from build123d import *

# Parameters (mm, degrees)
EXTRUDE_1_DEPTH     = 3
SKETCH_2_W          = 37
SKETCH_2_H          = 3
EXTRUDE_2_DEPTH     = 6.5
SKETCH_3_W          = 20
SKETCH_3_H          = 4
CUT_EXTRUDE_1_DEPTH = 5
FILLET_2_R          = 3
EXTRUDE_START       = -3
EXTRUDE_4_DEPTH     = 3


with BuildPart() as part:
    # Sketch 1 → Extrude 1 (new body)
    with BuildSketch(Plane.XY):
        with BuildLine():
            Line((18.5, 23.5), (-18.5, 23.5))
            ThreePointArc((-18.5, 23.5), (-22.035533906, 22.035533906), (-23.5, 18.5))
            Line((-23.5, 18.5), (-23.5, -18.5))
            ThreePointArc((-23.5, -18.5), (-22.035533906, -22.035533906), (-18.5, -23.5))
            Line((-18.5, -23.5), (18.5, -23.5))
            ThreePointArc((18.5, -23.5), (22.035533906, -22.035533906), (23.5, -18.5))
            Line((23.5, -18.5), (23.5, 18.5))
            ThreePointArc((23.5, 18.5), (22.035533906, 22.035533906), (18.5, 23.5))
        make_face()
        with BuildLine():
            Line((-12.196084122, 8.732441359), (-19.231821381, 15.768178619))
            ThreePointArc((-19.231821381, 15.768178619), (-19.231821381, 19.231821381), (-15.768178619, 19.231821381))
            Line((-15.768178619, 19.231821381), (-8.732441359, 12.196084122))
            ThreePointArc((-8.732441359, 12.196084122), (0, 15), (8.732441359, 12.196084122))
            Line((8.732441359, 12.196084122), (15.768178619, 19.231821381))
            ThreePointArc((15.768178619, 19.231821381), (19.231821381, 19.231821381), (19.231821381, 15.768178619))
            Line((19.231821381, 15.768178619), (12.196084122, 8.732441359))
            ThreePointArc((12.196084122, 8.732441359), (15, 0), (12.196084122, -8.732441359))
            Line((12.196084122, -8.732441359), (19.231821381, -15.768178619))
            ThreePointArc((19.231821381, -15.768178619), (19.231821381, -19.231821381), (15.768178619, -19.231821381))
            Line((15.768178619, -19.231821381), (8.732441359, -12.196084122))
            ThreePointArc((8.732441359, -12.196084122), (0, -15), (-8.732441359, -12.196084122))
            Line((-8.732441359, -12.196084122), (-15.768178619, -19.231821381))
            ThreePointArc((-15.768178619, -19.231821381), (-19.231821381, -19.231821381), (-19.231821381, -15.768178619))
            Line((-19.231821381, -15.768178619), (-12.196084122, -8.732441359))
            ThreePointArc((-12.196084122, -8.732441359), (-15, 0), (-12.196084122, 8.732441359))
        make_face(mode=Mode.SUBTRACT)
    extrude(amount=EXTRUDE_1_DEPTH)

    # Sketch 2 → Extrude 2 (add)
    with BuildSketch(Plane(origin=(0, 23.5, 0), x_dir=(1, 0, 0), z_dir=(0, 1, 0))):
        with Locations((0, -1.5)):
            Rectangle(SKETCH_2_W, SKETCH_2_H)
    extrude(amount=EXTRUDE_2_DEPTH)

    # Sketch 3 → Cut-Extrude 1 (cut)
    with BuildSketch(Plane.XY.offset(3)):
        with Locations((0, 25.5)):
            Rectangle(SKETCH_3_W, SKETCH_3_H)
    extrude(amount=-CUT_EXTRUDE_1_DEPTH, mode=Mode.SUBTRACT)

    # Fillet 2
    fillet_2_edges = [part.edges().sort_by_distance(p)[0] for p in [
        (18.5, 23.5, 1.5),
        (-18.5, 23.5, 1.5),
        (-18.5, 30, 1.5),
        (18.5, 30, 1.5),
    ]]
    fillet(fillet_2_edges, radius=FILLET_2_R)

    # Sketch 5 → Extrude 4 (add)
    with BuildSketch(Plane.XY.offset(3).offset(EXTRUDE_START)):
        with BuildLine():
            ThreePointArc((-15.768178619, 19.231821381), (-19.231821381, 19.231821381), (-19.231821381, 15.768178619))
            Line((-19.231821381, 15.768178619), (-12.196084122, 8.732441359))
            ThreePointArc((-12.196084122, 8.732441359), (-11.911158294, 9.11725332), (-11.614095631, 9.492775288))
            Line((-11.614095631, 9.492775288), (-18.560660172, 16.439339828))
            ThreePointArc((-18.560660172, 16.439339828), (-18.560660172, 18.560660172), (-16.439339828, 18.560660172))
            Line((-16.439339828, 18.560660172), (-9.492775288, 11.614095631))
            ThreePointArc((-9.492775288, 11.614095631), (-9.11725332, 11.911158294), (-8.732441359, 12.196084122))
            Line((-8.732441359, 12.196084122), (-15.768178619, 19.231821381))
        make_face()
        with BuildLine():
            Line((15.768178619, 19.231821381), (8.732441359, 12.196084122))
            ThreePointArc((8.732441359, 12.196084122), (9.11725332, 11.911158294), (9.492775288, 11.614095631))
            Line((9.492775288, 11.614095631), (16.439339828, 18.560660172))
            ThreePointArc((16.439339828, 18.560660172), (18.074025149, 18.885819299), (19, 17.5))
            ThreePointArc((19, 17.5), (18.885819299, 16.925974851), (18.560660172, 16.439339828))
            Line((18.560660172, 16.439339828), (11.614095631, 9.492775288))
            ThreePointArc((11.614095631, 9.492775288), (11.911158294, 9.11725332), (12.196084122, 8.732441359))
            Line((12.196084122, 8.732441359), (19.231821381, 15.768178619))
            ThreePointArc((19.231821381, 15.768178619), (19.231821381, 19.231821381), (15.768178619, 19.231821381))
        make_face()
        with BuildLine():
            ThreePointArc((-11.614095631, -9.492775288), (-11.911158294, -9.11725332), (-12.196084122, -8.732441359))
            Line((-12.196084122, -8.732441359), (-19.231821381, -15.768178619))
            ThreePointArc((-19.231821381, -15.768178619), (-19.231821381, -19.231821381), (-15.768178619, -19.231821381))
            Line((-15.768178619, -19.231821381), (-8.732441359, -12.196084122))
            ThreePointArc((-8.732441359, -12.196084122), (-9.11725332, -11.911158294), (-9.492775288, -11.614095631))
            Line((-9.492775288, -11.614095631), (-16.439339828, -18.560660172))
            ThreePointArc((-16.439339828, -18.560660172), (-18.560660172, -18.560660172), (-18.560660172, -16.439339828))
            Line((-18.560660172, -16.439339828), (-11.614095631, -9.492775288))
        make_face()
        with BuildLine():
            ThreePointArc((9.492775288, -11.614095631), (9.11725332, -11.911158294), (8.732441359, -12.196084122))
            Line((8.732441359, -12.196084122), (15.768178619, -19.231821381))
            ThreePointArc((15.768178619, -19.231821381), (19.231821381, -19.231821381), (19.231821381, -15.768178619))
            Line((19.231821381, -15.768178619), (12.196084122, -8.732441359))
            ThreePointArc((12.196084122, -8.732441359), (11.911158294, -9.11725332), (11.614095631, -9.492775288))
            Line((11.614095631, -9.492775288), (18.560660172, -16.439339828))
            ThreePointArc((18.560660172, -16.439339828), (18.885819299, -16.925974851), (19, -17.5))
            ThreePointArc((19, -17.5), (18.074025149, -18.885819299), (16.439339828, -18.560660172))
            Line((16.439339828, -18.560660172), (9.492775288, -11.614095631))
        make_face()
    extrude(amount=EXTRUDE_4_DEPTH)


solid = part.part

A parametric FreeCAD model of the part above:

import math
import FreeCAD as App
import Part
import Sketcher
Q = App.Units.Quantity


def edges_at(feature, points):
    """Names of the edges that pass closest to the given points."""
    edges = feature.Shape.Edges
    near = lambda p: min(range(len(edges)), key=lambda i: edges[i].distToShape(Part.Vertex(*p))[0])
    return sorted({f"Edge{near(p) + 1}" for p in points})


def add_polygon(sketch, points):
    """Adds a closed chain of lines whose ends are joined by coincident constraints."""
    first, n = sketch.GeometryCount, len(points)
    for a, b in zip(points, points[1:] + points[:1]):
        sketch.addGeometry(Part.LineSegment(App.Vector(*a, 0), App.Vector(*b, 0)), False)
    for i in range(n):
        sketch.addConstraint(Sketcher.Constraint("Coincident", first + i, 2, first + (i + 1) % n, 1))

doc = App.newDocument("Part")
body = doc.addObject("PartDesign::Body", "Body")

# Sketch on XY plane
sketch1 = body.newObject("Sketcher::SketchObject", "Sketch")
sketch1.AttachmentSupport = (doc.getObject("XY_Plane"), [""])
sketch1.MapMode = "FlatFace"
sketch1.addGeometry([
    Part.LineSegment(App.Vector(18.5, 23.5, 0), App.Vector(-18.5, 23.5, 0)),  # 0
    Part.ArcOfCircle(Part.Circle(App.Vector(-18.5, 18.5, 0), App.Vector(0, 0, 1), 5), math.radians(90), math.radians(180)),  # 1
    Part.LineSegment(App.Vector(-23.5, 18.5, 0), App.Vector(-23.5, -18.5, 0)),  # 2
    Part.ArcOfCircle(Part.Circle(App.Vector(-18.5, -18.5, 0), App.Vector(0, 0, 1), 5), math.radians(180), math.radians(270)),  # 3
    Part.LineSegment(App.Vector(-18.5, -23.5, 0), App.Vector(18.5, -23.5, 0)),  # 4
    Part.ArcOfCircle(Part.Circle(App.Vector(18.5, -18.5, 0), App.Vector(0, 0, 1), 5), math.radians(-90), math.radians(0)),  # 5
    Part.LineSegment(App.Vector(23.5, -18.5, 0), App.Vector(23.5, 18.5, 0)),  # 6
    Part.ArcOfCircle(Part.Circle(App.Vector(18.5, 18.5, 0), App.Vector(0, 0, 1), 5), math.radians(0), math.radians(90)),  # 7
    Part.ArcOfCircle(Part.Circle(App.Vector(0, 0, 0), App.Vector(0, 0, 1), 15), math.radians(144), math.radians(216)),  # 8
    Part.LineSegment(App.Vector(-12.2, 8.7, 0), App.Vector(-19.2, 15.8, 0)),  # 9
    Part.ArcOfCircle(Part.Circle(App.Vector(-17.5, 17.5, 0), App.Vector(0, 0, 1), 2.4), math.radians(45), math.radians(225)),  # 10
    Part.LineSegment(App.Vector(-15.8, 19.2, 0), App.Vector(-8.7, 12.2, 0)),  # 11
    Part.ArcOfCircle(Part.Circle(App.Vector(0, 0, 0), App.Vector(0, 0, 1), 15), math.radians(54), math.radians(126)),  # 12
    Part.LineSegment(App.Vector(8.7, 12.2, 0), App.Vector(15.8, 19.2, 0)),  # 13
    Part.ArcOfCircle(Part.Circle(App.Vector(17.5, 17.5, 0), App.Vector(0, 0, 1), 2.4), math.radians(-45), math.radians(135)),  # 14
    Part.LineSegment(App.Vector(19.2, 15.8, 0), App.Vector(12.2, 8.7, 0)),  # 15
    Part.ArcOfCircle(Part.Circle(App.Vector(0, 0, 0), App.Vector(0, 0, 1), 15), math.radians(-36), math.radians(36)),  # 16
    Part.LineSegment(App.Vector(12.2, -8.7, 0), App.Vector(19.2, -15.8, 0)),  # 17
    Part.ArcOfCircle(Part.Circle(App.Vector(17.5, -17.5, 0), App.Vector(0, 0, 1), 2.4), math.radians(-135), math.radians(45)),  # 18
    Part.LineSegment(App.Vector(15.8, -19.2, 0), App.Vector(8.7, -12.2, 0)),  # 19
    Part.ArcOfCircle(Part.Circle(App.Vector(0, 0, 0), App.Vector(0, 0, 1), 15), math.radians(-126), math.radians(-54)),  # 20
    Part.LineSegment(App.Vector(-8.7, -12.2, 0), App.Vector(-15.8, -19.2, 0)),  # 21
    Part.ArcOfCircle(Part.Circle(App.Vector(-17.5, -17.5, 0), App.Vector(0, 0, 1), 2.4), math.radians(135), math.radians(315)),  # 22
    Part.LineSegment(App.Vector(-19.2, -15.8, 0), App.Vector(-12.2, -8.7, 0)),  # 23
], False)
sketch1.addConstraint([
    Sketcher.Constraint("Tangent", 0, 2, 1, 1),
    Sketcher.Constraint("Tangent", 1, 2, 2, 1),
    Sketcher.Constraint("Tangent", 2, 2, 3, 1),
    Sketcher.Constraint("Tangent", 3, 2, 4, 1),
    Sketcher.Constraint("Tangent", 4, 2, 5, 1),
    Sketcher.Constraint("Tangent", 5, 2, 6, 1),
    Sketcher.Constraint("Tangent", 6, 2, 7, 1),
    Sketcher.Constraint("Tangent", 7, 2, 0, 1),
    Sketcher.Constraint("Coincident", 8, 1, 9, 1),
    Sketcher.Constraint("Tangent", 9, 2, 10, 2),
    Sketcher.Constraint("Tangent", 10, 1, 11, 1),
    Sketcher.Constraint("Coincident", 11, 2, 12, 2),
    Sketcher.Constraint("Coincident", 12, 1, 13, 1),
    Sketcher.Constraint("Tangent", 13, 2, 14, 2),
    Sketcher.Constraint("Tangent", 14, 1, 15, 1),
    Sketcher.Constraint("Coincident", 15, 2, 16, 2),
    Sketcher.Constraint("Coincident", 16, 1, 17, 1),
    Sketcher.Constraint("Tangent", 17, 2, 18, 2),
    Sketcher.Constraint("Tangent", 18, 1, 19, 1),
    Sketcher.Constraint("Coincident", 19, 2, 20, 2),
    Sketcher.Constraint("Coincident", 20, 1, 21, 1),
    Sketcher.Constraint("Tangent", 21, 2, 22, 2),
    Sketcher.Constraint("Tangent", 22, 1, 23, 1),
    Sketcher.Constraint("Coincident", 23, 2, 8, 2),
    Sketcher.Constraint("Horizontal", 0),
    Sketcher.Constraint("Vertical", 2),
    Sketcher.Constraint("Horizontal", 4),
    Sketcher.Constraint("Vertical", 6),
    Sketcher.Constraint("Coincident", 8, 3, -1, 1),
    Sketcher.Constraint("Coincident", 12, 3, -1, 1),
    Sketcher.Constraint("Coincident", 16, 3, -1, 1),
    Sketcher.Constraint("Coincident", 20, 3, -1, 1),
    Sketcher.Constraint("Equal", 1, 3),
    Sketcher.Constraint("Equal", 3, 5),
    Sketcher.Constraint("Equal", 5, 7),
    Sketcher.Constraint("Equal", 8, 12),
    Sketcher.Constraint("Equal", 10, 14),
    Sketcher.Constraint("Equal", 12, 16),
    Sketcher.Constraint("Equal", 14, 18),
    Sketcher.Constraint("Equal", 16, 20),
    Sketcher.Constraint("Equal", 18, 22),
    Sketcher.Constraint("Symmetric", 1, 3, 5, 3, -1, 1),
    Sketcher.Constraint("Symmetric", 10, 3, 18, 3, -1, 1),
    Sketcher.Constraint("Symmetric", 14, 3, 22, 3, -1, 1),
    Sketcher.Constraint("Symmetric", 10, 3, 14, 3, -2),
    Sketcher.Constraint("Parallel", 9, 11),
    Sketcher.Constraint("Perpendicular", 11, 13),
    Sketcher.Constraint("Parallel", 13, 15),
    Sketcher.Constraint("Perpendicular", 15, 17),
    Sketcher.Constraint("Parallel", 17, 19),
    Sketcher.Constraint("Perpendicular", 19, 21),
    Sketcher.Constraint("Parallel", 21, 23),
    Sketcher.Constraint("Horizontal", 11, 2, 12, 1),
    Sketcher.Constraint("Equal", 4, 2),
    Sketcher.Constraint("Equal", 9, 11),
    Sketcher.Constraint("Radius", 1, Q("5 mm")),
    Sketcher.Constraint("Radius", 8, Q("15 mm")),
    Sketcher.Constraint("DistanceX", 0, 2, 0, 1, Q("37 mm")),
    Sketcher.Constraint("DistanceX", 1, 3, 10, 3, Q("1 mm")),
    Sketcher.Constraint("Radius", 10, Q("2.449165 mm")),
])
pad1 = body.newObject("PartDesign::Pad", "Pad")
pad1.Profile = sketch1
pad1.Length = 3

# Sketch on XZ plane
sketch2 = body.newObject("Sketcher::SketchObject", "Sketch001")
sketch2.AttachmentSupport = (doc.getObject("XZ_Plane"), [""])
sketch2.MapMode = "FlatFace"
sketch2.AttachmentOffset = App.Placement(App.Vector(0, 0, -23.5), App.Rotation())
add_polygon(sketch2, [(-18.5, 0), (-18.5, 3), (18.5, 3), (18.5, 0)])  # lines 0-3
sketch2.addConstraint([
    Sketcher.Constraint("Vertical", 0),
    Sketcher.Constraint("Horizontal", 1),
    Sketcher.Constraint("Vertical", 2),
    Sketcher.Constraint("Horizontal", 3),
    Sketcher.Constraint("Symmetric", 2, 2, 3, 2, -1, 1),
    Sketcher.Constraint("DistanceX", 1, 1, 1, 2, Q("37 mm")),
    Sketcher.Constraint("DistanceY", 0, 1, 0, 2, Q("3 mm")),
])
pad2 = body.newObject("PartDesign::Pad", "Pad001")
pad2.Profile = sketch2
pad2.Length = 6.5
pad2.Reversed = True

# Sketch on XY plane
sketch3 = body.newObject("Sketcher::SketchObject", "Sketch002")
sketch3.AttachmentSupport = (doc.getObject("XY_Plane"), [""])
sketch3.MapMode = "FlatFace"
sketch3.AttachmentOffset = App.Placement(App.Vector(0, 0, 3), App.Rotation())
add_polygon(sketch3, [(-10, 27.5), (-10, 23.5), (10, 23.5), (10, 27.5)])  # lines 0-3
sketch3.addConstraint([
    Sketcher.Constraint("Vertical", 0),
    Sketcher.Constraint("Horizontal", 1),
    Sketcher.Constraint("Vertical", 2),
    Sketcher.Constraint("Horizontal", 3),
    Sketcher.Constraint("DistanceX", 1, 1, 1, 2, Q("20 mm")),
    Sketcher.Constraint("DistanceY", 0, 2, 0, 1, Q("4 mm")),
    Sketcher.Constraint("DistanceX", 0, 2, -1, 1, Q("10 mm")),
    Sketcher.Constraint("DistanceY", -1, 1, 0, 2, Q("23.5 mm")),
])
pocket1 = body.newObject("PartDesign::Pocket", "Pocket")
pocket1.Profile = sketch3
pocket1.Length = 5
doc.recompute()

fillet = body.newObject("PartDesign::Fillet", "Fillet")
fillet.Base = (pocket1, edges_at(pocket1, [
    (18.5, 23.5, 1.5),
    (-18.5, 23.5, 1.5),
    (-18.5, 30, 1.5),
    (18.5, 30, 1.5),
]))
fillet.Radius = 3

# Sketch on XY plane
sketch4 = body.newObject("Sketcher::SketchObject", "Sketch003")
sketch4.AttachmentSupport = (doc.getObject("XY_Plane"), [""])
sketch4.MapMode = "FlatFace"
sketch4.addGeometry([
    Part.ArcOfCircle(Part.Circle(App.Vector(-17.5, 17.5, 0), App.Vector(0, 0, 1), 2.4), math.radians(45), math.radians(225)),  # 0
    Part.LineSegment(App.Vector(-19.2, 15.8, 0), App.Vector(-12.2, 8.7, 0)),  # 1
    Part.ArcOfCircle(Part.Circle(App.Vector(0, 0, 0), App.Vector(0, 0, 1), 15), math.radians(140.74), math.radians(144.4)),  # 2
    Part.LineSegment(App.Vector(-11.6, 9.5, 0), App.Vector(-18.6, 16.4, 0)),  # 3
    Part.ArcOfCircle(Part.Circle(App.Vector(-17.5, 17.5, 0), App.Vector(0, 0, 1), 1.5), math.radians(45), math.radians(225)),  # 4
    Part.LineSegment(App.Vector(-16.4, 18.6, 0), App.Vector(-9.5, 11.6, 0)),  # 5
    Part.ArcOfCircle(Part.Circle(App.Vector(0, 0, 0), App.Vector(0, 0, 1), 15), math.radians(125.6), math.radians(129.26)),  # 6
    Part.LineSegment(App.Vector(-8.7, 12.2, 0), App.Vector(-15.8, 19.2, 0)),  # 7
    Part.LineSegment(App.Vector(15.8, 19.2, 0), App.Vector(8.7, 12.2, 0)),  # 8
    Part.ArcOfCircle(Part.Circle(App.Vector(0, 0, 0), App.Vector(0, 0, 1), 15), math.radians(50.74), math.radians(54.4)),  # 9
    Part.LineSegment(App.Vector(9.5, 11.6, 0), App.Vector(16.4, 18.6, 0)),  # 10
    Part.ArcOfCircle(Part.Circle(App.Vector(17.5, 17.5, 0), App.Vector(0, 0, 1), 1.5), math.radians(0), math.radians(135)),  # 11
    Part.ArcOfCircle(Part.Circle(App.Vector(17.5, 17.5, 0), App.Vector(0, 0, 1), 1.5), math.radians(-45), math.radians(0)),  # 12
    Part.LineSegment(App.Vector(18.6, 16.4, 0), App.Vector(11.6, 9.5, 0)),  # 13
    Part.ArcOfCircle(Part.Circle(App.Vector(0, 0, 0), App.Vector(0, 0, 1), 15), math.radians(35.6), math.radians(39.26)),  # 14
    Part.LineSegment(App.Vector(12.2, 8.7, 0), App.Vector(19.2, 15.8, 0)),  # 15
    Part.ArcOfCircle(Part.Circle(App.Vector(17.5, 17.5, 0), App.Vector(0, 0, 1), 2.4), math.radians(-45), math.radians(135)),  # 16
    Part.ArcOfCircle(Part.Circle(App.Vector(0, 0, 0), App.Vector(0, 0, 1), 15), math.radians(-144.4), math.radians(-140.74)),  # 17
    Part.LineSegment(App.Vector(-12.2, -8.7, 0), App.Vector(-19.2, -15.8, 0)),  # 18
    Part.ArcOfCircle(Part.Circle(App.Vector(-17.5, -17.5, 0), App.Vector(0, 0, 1), 2.4), math.radians(135), math.radians(315)),  # 19
    Part.LineSegment(App.Vector(-15.8, -19.2, 0), App.Vector(-8.7, -12.2, 0)),  # 20
    Part.ArcOfCircle(Part.Circle(App.Vector(0, 0, 0), App.Vector(0, 0, 1), 15), math.radians(-129.26), math.radians(-125.6)),  # 21
    Part.LineSegment(App.Vector(-9.5, -11.6, 0), App.Vector(-16.4, -18.6, 0)),  # 22
    Part.ArcOfCircle(Part.Circle(App.Vector(-17.5, -17.5, 0), App.Vector(0, 0, 1), 1.5), math.radians(135), math.radians(315)),  # 23
    Part.LineSegment(App.Vector(-18.6, -16.4, 0), App.Vector(-11.6, -9.5, 0)),  # 24
    Part.ArcOfCircle(Part.Circle(App.Vector(0, 0, 0), App.Vector(0, 0, 1), 15), math.radians(-54.4), math.radians(-50.74)),  # 25
    Part.LineSegment(App.Vector(8.7, -12.2, 0), App.Vector(15.8, -19.2, 0)),  # 26
    Part.ArcOfCircle(Part.Circle(App.Vector(17.5, -17.5, 0), App.Vector(0, 0, 1), 2.4), math.radians(-135), math.radians(45)),  # 27
    Part.LineSegment(App.Vector(19.2, -15.8, 0), App.Vector(12.2, -8.7, 0)),  # 28
    Part.ArcOfCircle(Part.Circle(App.Vector(0, 0, 0), App.Vector(0, 0, 1), 15), math.radians(-39.26), math.radians(-35.6)),  # 29
    Part.LineSegment(App.Vector(11.6, -9.5, 0), App.Vector(18.6, -16.4, 0)),  # 30
    Part.ArcOfCircle(Part.Circle(App.Vector(17.5, -17.5, 0), App.Vector(0, 0, 1), 1.5), math.radians(0), math.radians(45)),  # 31
    Part.ArcOfCircle(Part.Circle(App.Vector(17.5, -17.5, 0), App.Vector(0, 0, 1), 1.5), math.radians(-135), math.radians(0)),  # 32
    Part.LineSegment(App.Vector(16.4, -18.6, 0), App.Vector(9.5, -11.6, 0)),  # 33
], False)
sketch4.addConstraint([
    Sketcher.Constraint("Tangent", 0, 2, 1, 1),
    Sketcher.Constraint("Coincident", 1, 2, 2, 2),
    Sketcher.Constraint("Coincident", 2, 1, 3, 1),
    Sketcher.Constraint("Tangent", 3, 2, 4, 2),
    Sketcher.Constraint("Tangent", 4, 1, 5, 1),
    Sketcher.Constraint("Coincident", 5, 2, 6, 2),
    Sketcher.Constraint("Coincident", 6, 1, 7, 1),
    Sketcher.Constraint("Tangent", 7, 2, 0, 1),
    Sketcher.Constraint("Coincident", 8, 2, 9, 2),
    Sketcher.Constraint("Coincident", 9, 1, 10, 1),
    Sketcher.Constraint("Tangent", 10, 2, 11, 2),
    Sketcher.Constraint("Tangent", 11, 1, 12, 2),
    Sketcher.Constraint("Tangent", 12, 1, 13, 1),
    Sketcher.Constraint("Coincident", 13, 2, 14, 2),
    Sketcher.Constraint("Coincident", 14, 1, 15, 1),
    Sketcher.Constraint("Tangent", 15, 2, 16, 1),
    Sketcher.Constraint("Tangent", 16, 2, 8, 1),
    Sketcher.Constraint("Coincident", 17, 1, 18, 1),
    Sketcher.Constraint("Tangent", 18, 2, 19, 1),
    Sketcher.Constraint("Tangent", 19, 2, 20, 1),
    Sketcher.Constraint("Coincident", 20, 2, 21, 2),
    Sketcher.Constraint("Coincident", 21, 1, 22, 1),
    Sketcher.Constraint("Tangent", 22, 2, 23, 2),
    Sketcher.Constraint("Tangent", 23, 1, 24, 1),
    Sketcher.Constraint("Coincident", 24, 2, 17, 2),
    Sketcher.Constraint("Coincident", 25, 1, 26, 1),
    Sketcher.Constraint("Tangent", 26, 2, 27, 1),
    Sketcher.Constraint("Tangent", 27, 2, 28, 1),
    Sketcher.Constraint("Coincident", 28, 2, 29, 2),
    Sketcher.Constraint("Coincident", 29, 1, 30, 1),
    Sketcher.Constraint("Tangent", 30, 2, 31, 2),
    Sketcher.Constraint("Tangent", 31, 1, 32, 2),
    Sketcher.Constraint("Tangent", 32, 1, 33, 1),
    Sketcher.Constraint("Coincident", 33, 2, 25, 2),
    Sketcher.Constraint("Coincident", 2, 3, -1, 1),
    Sketcher.Constraint("Coincident", 6, 3, -1, 1),
    Sketcher.Constraint("Coincident", 9, 3, -1, 1),
    Sketcher.Constraint("Coincident", 14, 3, -1, 1),
    Sketcher.Constraint("Coincident", 17, 3, -1, 1),
    Sketcher.Constraint("Coincident", 21, 3, -1, 1),
    Sketcher.Constraint("Coincident", 25, 3, -1, 1),
    Sketcher.Constraint("Coincident", 29, 3, -1, 1),
    Sketcher.Constraint("Coincident", 4, 3, 0, 3),
    Sketcher.Constraint("Coincident", 16, 3, 11, 3),
    Sketcher.Constraint("Coincident", 23, 3, 19, 3),
    Sketcher.Constraint("Coincident", 31, 3, 27, 3),
    Sketcher.Constraint("Equal", 2, 6),
    Sketcher.Constraint("Equal", 6, 9),
    Sketcher.Constraint("Equal", 4, 11),
    Sketcher.Constraint("Equal", 11, 12),
    Sketcher.Constraint("Equal", 9, 14),
    Sketcher.Constraint("Equal", 0, 16),
    Sketcher.Constraint("Equal", 14, 17),
    Sketcher.Constraint("Equal", 16, 19),
    Sketcher.Constraint("Equal", 17, 21),
    Sketcher.Constraint("Equal", 12, 23),
    Sketcher.Constraint("Equal", 21, 25),
    Sketcher.Constraint("Equal", 19, 27),
    Sketcher.Constraint("Equal", 25, 29),
    Sketcher.Constraint("Equal", 23, 31),
    Sketcher.Constraint("Equal", 31, 32),
    Sketcher.Constraint("Symmetric", 11, 3, 19, 3, -1, 1),
    Sketcher.Constraint("Symmetric", 0, 3, 27, 3, -1, 1),
    Sketcher.Constraint("Symmetric", 0, 3, 11, 3, -2),
    Sketcher.Constraint("Parallel", 1, 3),
    Sketcher.Constraint("Parallel", 3, 5),
    Sketcher.Constraint("Parallel", 5, 7),
    Sketcher.Constraint("Perpendicular", 7, 8),
    Sketcher.Constraint("Parallel", 8, 10),
    Sketcher.Constraint("Parallel", 10, 13),
    Sketcher.Constraint("Parallel", 13, 15),
    Sketcher.Constraint("Parallel", 15, 18),
    Sketcher.Constraint("Parallel", 18, 20),
    Sketcher.Constraint("Parallel", 20, 22),
    Sketcher.Constraint("Parallel", 22, 24),
    Sketcher.Constraint("Perpendicular", 24, 26),
    Sketcher.Constraint("Parallel", 26, 28),
    Sketcher.Constraint("Parallel", 28, 30),
    Sketcher.Constraint("Parallel", 30, 33),
    Sketcher.Constraint("Horizontal", 6, 1, 8, 2),
    Sketcher.Constraint("Horizontal", 16, 3, 11, 1),
    Sketcher.Constraint("Horizontal", 32, 3, 31, 1),
    Sketcher.Constraint("Equal", 3, 5),
    Sketcher.Constraint("Radius", 2, Q("14.999999 mm")),
    Sketcher.Constraint("Radius", 4, Q("1.5 mm")),
    Sketcher.Constraint("DistanceX", -1, 1, 11, 1, Q("19 mm")),
    Sketcher.Constraint("Radius", 0, Q("2.449165 mm")),
])
pad3 = body.newObject("PartDesign::Pad", "Pad002")
pad3.Profile = sketch4
pad3.Length = 3

doc.recompute()
